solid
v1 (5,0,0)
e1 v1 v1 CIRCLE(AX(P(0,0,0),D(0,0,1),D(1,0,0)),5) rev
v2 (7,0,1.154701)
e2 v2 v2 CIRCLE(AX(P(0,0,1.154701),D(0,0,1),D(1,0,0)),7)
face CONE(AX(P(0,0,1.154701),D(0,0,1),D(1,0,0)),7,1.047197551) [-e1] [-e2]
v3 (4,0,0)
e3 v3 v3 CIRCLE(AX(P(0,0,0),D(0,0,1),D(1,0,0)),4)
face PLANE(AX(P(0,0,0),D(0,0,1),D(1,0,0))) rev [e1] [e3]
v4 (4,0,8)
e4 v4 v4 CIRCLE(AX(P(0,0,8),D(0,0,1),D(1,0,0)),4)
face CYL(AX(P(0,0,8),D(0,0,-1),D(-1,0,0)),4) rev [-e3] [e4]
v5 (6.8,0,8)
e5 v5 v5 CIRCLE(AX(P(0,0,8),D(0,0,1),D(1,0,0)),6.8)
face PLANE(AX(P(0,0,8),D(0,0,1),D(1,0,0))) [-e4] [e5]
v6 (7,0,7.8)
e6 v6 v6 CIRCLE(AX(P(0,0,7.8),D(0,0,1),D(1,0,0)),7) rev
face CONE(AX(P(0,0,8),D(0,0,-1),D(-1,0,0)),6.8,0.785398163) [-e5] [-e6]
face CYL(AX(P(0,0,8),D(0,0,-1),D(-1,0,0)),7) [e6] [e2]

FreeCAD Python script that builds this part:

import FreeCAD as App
import Part
import Sketcher


def edges_at(feature, points):
    """Names of the edges that pass closest to the given points."""
    edges = feature.Shape.Edges
    near = lambda p: min(range(len(edges)), key=lambda i: edges[i].distToShape(Part.Vertex(*p))[0])
    return sorted({f"Edge{near(p) + 1}" for p in points})

doc = App.newDocument("Part")
params = doc.addObject("Spreadsheet::Sheet", "Params")
for row, (alias, value) in enumerate([
    ("sketch1_diameter", "14 mm"),
    ("sketch1_diameter2", "8 mm"),
    ("pad1_length", "8 mm"),
    ("chamfer_size", "0.2 mm"),
    ("chamfer2_size", "2 mm"),
    ("chamfer2_size2", "1.154701 mm"),
], start=1):
    params.set(f"A{row}", alias)
    params.set(f"B{row}", "=" + value)
    params.setAlias(f"B{row}", alias)

body = doc.addObject("PartDesign::Body", "Body")

sketch1 = body.newObject("Sketcher::SketchObject", "Sketch")
sketch1.AttachmentSupport = (doc.getObject("XY_Plane"), [""])
sketch1.MapMode = "FlatFace"
sketch1.addGeometry([
    Part.Circle(App.Vector(0, 0, 0), App.Vector(0, 0, 1), 7),
    Part.Circle(App.Vector(0, 0, 0), App.Vector(0, 0, 1), 4),
], False)
sketch1.addConstraint([
    Sketcher.Constraint("Coincident", 0, 3, -1, 1),
    Sketcher.Constraint("Coincident", 1, 3, -1, 1),
    Sketcher.Constraint("Diameter", 0, 14.0),
    Sketcher.Constraint("Diameter", 1, 8.0),
])
sketch1.setExpression("Constraints[2]", "Params.sketch1_diameter")
sketch1.setExpression("Constraints[3]", "Params.sketch1_diameter2")
pad1 = body.newObject("PartDesign::Pad", "Pad")
pad1.Profile = sketch1
pad1.setExpression("Length", "Params.pad1_length")
doc.recompute()

chamfer = body.newObject("PartDesign::Chamfer", "Chamfer")
chamfer.Base = (pad1, edges_at(pad1, [(-7, 0, 8)]))
chamfer.setExpression("Size", "Params.chamfer_size")
doc.recompute()

chamfer2 = body.newObject("PartDesign::Chamfer", "Chamfer001")
chamfer2.Base = (chamfer, edges_at(chamfer, [(-7, 0, 0)]))
chamfer2.ChamferType = "Two distances"
chamfer2.setExpression("Size", "Params.chamfer2_size")
chamfer2.setExpression("Size2", "Params.chamfer2_size2")
chamfer2.FlipDirection = True

doc.recompute()
